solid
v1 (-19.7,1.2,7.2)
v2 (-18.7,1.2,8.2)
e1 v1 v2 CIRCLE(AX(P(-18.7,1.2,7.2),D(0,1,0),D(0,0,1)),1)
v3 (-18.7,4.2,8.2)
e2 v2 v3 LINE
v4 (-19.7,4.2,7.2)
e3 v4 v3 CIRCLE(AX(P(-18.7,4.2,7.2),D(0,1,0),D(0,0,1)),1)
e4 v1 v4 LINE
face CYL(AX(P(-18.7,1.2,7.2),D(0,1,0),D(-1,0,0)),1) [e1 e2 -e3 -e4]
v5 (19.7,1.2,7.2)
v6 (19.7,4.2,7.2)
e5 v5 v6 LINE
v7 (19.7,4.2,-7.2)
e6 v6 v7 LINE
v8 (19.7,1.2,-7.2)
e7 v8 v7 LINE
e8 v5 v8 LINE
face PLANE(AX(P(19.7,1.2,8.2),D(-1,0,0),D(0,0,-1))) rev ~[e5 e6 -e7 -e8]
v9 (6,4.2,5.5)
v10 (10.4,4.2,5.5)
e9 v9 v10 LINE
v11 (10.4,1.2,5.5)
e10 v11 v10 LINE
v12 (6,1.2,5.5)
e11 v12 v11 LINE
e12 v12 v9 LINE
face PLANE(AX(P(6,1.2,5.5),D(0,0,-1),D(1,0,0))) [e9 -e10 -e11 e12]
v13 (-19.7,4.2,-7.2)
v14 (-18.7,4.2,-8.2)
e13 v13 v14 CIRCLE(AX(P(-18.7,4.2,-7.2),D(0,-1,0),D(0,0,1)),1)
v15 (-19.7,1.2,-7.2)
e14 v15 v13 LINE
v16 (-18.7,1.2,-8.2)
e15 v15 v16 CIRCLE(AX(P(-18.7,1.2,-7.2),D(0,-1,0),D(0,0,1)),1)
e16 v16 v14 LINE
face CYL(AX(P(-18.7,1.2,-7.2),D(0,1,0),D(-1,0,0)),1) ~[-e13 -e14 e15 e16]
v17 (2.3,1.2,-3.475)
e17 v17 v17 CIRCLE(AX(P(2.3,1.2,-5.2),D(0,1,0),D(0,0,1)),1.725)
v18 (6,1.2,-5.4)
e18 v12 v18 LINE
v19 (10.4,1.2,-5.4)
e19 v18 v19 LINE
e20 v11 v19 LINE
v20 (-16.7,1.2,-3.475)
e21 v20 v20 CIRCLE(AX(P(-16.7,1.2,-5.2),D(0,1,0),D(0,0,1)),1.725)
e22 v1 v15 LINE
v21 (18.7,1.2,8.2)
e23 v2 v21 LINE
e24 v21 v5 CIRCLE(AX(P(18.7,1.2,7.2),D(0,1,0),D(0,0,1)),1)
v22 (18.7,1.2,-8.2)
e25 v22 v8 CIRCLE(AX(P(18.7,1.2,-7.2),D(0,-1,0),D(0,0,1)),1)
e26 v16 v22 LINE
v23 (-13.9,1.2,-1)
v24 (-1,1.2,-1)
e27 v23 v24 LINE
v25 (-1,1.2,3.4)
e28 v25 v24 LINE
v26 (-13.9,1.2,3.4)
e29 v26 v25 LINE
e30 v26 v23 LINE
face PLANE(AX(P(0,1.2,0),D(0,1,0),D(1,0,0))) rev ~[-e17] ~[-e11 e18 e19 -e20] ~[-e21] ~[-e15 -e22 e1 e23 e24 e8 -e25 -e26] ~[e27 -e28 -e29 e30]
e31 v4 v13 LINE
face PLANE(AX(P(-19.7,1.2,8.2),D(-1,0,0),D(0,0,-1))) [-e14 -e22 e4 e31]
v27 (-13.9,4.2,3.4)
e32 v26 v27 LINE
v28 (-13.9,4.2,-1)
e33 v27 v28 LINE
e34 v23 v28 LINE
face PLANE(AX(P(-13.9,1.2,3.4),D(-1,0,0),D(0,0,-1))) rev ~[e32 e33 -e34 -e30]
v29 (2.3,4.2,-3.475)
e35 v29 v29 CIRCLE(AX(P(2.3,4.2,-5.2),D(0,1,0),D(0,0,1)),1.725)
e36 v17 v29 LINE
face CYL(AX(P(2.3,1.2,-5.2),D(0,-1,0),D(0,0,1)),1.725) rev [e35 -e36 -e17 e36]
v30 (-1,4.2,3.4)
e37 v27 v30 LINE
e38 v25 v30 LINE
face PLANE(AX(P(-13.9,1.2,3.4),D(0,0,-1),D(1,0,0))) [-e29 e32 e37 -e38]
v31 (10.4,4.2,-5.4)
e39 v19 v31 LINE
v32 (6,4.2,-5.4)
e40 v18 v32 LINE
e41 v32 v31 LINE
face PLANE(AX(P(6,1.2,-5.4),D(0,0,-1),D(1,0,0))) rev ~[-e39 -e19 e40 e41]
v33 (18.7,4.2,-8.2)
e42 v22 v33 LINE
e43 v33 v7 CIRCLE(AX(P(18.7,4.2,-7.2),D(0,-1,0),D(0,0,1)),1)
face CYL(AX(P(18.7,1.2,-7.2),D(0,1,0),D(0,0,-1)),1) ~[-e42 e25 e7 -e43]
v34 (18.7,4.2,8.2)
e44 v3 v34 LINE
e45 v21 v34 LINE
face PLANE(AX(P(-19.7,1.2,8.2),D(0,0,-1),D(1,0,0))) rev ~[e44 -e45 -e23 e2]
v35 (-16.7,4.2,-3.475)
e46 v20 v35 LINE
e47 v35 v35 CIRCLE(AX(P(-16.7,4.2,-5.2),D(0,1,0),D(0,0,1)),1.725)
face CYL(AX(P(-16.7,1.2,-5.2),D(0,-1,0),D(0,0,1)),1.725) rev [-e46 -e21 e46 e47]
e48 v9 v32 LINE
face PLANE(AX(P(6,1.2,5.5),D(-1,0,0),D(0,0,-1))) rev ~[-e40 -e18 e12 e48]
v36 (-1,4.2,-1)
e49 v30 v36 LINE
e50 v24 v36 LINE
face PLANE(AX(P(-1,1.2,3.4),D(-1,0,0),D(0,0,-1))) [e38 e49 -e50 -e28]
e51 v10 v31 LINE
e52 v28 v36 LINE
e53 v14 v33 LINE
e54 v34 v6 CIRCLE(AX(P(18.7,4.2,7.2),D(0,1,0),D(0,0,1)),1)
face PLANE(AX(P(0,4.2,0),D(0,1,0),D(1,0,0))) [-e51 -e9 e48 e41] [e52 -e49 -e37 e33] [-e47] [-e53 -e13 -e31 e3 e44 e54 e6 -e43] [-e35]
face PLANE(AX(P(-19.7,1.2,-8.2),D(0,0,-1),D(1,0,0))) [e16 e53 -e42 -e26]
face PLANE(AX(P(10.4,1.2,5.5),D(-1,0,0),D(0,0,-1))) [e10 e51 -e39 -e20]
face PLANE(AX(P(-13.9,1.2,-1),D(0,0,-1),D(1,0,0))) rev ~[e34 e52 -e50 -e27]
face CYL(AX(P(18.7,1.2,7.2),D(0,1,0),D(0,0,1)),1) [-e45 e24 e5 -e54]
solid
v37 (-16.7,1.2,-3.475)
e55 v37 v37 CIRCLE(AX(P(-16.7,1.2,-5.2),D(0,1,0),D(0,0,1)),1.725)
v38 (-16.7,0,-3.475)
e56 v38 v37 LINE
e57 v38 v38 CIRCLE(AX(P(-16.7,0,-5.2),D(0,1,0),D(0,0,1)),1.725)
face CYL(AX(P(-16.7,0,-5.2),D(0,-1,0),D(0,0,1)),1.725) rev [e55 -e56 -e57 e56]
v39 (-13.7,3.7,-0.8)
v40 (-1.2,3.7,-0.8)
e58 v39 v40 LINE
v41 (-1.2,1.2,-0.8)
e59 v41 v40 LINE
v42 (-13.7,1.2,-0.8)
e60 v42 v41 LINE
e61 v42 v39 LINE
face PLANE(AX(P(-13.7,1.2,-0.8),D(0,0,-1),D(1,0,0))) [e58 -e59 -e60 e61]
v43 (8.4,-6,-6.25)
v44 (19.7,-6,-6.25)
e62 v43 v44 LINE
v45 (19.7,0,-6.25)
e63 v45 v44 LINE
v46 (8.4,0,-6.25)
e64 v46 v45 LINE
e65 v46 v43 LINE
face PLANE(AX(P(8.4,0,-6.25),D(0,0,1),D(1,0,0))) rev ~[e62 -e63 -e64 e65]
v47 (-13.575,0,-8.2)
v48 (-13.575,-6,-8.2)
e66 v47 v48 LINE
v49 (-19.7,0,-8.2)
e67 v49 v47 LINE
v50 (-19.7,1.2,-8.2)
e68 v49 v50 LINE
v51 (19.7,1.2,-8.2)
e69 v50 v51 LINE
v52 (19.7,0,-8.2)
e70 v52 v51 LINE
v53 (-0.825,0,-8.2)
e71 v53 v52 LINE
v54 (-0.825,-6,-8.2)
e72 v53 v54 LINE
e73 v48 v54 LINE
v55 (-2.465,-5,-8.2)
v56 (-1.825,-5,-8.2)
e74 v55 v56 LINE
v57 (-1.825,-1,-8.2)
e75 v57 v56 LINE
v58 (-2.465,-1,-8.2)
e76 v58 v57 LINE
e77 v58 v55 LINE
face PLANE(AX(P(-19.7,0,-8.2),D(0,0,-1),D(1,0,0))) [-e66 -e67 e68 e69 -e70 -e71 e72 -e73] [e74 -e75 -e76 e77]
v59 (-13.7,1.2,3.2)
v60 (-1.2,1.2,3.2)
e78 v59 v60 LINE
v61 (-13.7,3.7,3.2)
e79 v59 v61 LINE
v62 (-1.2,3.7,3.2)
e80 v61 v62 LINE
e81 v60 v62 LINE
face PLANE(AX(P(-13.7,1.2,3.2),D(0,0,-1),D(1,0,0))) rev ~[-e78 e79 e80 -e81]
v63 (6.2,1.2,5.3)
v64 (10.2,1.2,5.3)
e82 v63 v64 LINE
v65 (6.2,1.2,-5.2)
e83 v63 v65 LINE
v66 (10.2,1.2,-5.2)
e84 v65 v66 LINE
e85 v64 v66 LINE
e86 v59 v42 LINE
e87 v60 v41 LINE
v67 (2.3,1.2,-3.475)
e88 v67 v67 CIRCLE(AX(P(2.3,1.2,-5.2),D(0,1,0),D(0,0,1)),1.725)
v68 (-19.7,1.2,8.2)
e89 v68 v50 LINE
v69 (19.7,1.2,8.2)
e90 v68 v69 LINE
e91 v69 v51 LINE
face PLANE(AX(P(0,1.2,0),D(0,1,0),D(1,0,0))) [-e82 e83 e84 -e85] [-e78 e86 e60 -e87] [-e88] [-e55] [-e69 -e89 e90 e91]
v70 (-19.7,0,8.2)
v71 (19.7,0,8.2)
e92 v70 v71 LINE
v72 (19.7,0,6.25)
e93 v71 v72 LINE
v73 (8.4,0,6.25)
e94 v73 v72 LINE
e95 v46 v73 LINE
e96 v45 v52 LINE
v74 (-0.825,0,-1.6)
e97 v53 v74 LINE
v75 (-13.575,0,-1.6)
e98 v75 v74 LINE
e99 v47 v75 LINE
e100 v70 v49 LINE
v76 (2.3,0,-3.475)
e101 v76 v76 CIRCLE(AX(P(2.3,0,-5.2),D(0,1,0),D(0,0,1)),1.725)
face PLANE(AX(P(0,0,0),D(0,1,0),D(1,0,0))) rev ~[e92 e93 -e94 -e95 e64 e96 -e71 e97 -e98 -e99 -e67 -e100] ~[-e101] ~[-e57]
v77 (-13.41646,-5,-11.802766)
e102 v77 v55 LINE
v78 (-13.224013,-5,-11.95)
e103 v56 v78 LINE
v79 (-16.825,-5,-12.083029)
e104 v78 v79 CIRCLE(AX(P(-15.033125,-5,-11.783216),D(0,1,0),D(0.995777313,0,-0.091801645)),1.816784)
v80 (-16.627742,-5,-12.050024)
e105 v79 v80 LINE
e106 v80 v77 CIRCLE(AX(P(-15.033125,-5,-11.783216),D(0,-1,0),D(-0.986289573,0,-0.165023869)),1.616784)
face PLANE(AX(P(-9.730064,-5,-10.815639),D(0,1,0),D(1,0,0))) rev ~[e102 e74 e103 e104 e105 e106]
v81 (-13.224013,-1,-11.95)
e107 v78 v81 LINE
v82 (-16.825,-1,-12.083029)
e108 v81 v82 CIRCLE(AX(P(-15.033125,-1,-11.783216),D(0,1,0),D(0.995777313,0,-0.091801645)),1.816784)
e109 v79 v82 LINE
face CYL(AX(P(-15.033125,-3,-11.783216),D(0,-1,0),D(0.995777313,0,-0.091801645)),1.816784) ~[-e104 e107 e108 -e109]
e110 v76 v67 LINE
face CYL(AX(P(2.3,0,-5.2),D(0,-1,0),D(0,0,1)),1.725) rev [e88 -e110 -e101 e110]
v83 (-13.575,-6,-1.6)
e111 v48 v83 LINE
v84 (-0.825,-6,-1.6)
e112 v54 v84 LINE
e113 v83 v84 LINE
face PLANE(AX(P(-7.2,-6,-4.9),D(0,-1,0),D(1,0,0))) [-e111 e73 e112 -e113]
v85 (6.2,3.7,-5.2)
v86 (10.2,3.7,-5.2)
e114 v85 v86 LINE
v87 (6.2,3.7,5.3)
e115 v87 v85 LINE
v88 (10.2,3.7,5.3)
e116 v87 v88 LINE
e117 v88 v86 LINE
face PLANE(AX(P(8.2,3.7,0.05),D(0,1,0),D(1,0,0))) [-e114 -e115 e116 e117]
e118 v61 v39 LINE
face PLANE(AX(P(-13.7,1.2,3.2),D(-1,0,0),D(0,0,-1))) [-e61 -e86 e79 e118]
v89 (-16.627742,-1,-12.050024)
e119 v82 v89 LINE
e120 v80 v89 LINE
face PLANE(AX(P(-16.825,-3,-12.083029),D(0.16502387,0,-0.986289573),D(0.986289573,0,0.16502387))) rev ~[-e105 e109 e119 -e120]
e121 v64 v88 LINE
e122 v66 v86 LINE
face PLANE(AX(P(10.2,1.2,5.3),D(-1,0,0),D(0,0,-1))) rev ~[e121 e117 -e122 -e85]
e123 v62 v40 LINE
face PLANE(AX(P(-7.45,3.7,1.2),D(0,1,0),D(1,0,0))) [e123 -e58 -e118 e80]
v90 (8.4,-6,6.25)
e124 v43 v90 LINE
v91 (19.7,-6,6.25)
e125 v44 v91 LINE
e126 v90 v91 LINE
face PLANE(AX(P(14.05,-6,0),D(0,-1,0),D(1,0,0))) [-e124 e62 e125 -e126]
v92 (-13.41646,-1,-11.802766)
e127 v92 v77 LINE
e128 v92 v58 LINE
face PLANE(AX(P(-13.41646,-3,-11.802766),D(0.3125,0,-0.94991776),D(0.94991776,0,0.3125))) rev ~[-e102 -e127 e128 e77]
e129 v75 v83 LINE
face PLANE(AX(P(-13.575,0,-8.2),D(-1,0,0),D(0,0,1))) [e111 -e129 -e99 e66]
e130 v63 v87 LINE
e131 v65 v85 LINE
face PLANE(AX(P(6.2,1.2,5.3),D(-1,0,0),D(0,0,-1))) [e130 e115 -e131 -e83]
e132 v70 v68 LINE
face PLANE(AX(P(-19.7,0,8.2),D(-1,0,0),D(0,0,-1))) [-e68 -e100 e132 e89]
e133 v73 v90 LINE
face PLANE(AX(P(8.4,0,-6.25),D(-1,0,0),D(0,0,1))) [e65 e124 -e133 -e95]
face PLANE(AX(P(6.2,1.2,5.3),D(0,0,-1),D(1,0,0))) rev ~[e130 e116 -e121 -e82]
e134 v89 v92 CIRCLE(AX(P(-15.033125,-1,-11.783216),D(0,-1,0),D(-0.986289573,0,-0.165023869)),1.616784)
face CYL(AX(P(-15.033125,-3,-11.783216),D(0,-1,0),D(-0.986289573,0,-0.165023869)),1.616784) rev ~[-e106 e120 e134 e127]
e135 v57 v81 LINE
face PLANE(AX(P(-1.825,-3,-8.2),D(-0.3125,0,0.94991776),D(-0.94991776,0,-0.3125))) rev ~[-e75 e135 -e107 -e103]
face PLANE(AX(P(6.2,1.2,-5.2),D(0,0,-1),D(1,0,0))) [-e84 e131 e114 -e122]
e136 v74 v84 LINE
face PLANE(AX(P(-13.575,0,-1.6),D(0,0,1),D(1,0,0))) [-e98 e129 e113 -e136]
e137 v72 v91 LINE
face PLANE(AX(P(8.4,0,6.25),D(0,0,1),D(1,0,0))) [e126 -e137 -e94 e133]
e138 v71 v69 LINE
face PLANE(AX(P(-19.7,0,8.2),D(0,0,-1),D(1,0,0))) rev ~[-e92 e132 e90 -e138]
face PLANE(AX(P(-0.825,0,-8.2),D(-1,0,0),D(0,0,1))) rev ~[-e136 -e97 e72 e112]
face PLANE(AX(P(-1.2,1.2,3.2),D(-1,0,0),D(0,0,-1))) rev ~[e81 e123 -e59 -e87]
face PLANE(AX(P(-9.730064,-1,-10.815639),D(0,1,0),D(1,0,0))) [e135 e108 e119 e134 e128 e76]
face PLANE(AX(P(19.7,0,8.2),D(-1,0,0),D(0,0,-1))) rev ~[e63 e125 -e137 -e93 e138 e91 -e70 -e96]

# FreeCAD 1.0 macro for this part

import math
import FreeCAD as App
import Part
import Sketcher

V = App.Vector
Q = App.Units.Quantity


def edges_at(feature, points):
    """Names of the edges that pass closest to the given points."""
    edges = feature.Shape.Edges
    near = lambda p: min(range(len(edges)), key=lambda i: edges[i].distToShape(Part.Vertex(*p))[0])
    return sorted({f"Edge{near(p) + 1}" for p in points})

doc = App.newDocument("Part")
body = doc.addObject("PartDesign::Body", "Body")

# Sketch on XZ plane
sketch1 = body.newObject("Sketcher::SketchObject", "Sketch")
sketch1.AttachmentSupport = (doc.getObject("XZ_Plane"), [""])
sketch1.MapMode = "FlatFace"
sketch1.addGeometry([
    Part.LineSegment(V(-19.7, -8.2, 0), V(-19.7, 8.2, 0)),  # 0
    Part.LineSegment(V(-19.7, 8.2, 0), V(19.7, 8.2, 0)),  # 1
    Part.LineSegment(V(19.7, 8.2, 0), V(19.7, -8.2, 0)),  # 2
    Part.LineSegment(V(19.7, -8.2, 0), V(-19.7, -8.2, 0)),  # 3
    Part.Circle(V(-16.7, -5.2, 0), V(0, 0, 1), 1.7),  # 4
    Part.Circle(V(2.3, -5.2, 0), V(0, 0, 1), 1.7),  # 5
], False)
sketch1.addConstraint([
    Sketcher.Constraint("Coincident", 0, 2, 1, 1),
    Sketcher.Constraint("Coincident", 1, 2, 2, 1),
    Sketcher.Constraint("Coincident", 2, 2, 3, 1),
    Sketcher.Constraint("Coincident", 3, 2, 0, 1),
    Sketcher.Constraint("Vertical", 0),
    Sketcher.Constraint("Horizontal", 1),
    Sketcher.Constraint("Vertical", 2),
    Sketcher.Constraint("Horizontal", 3),
    Sketcher.Constraint("Equal", 4, 5),
    Sketcher.Constraint("Symmetric", 0, 2, 2, 2, -1, 1),
    Sketcher.Constraint("Horizontal", 4, 3, 5, 3),
    Sketcher.Constraint("Diameter", 4, Q("3.45 mm")),
    Sketcher.Constraint("DistanceX", 1, 1, 1, 2, Q("39.4 mm")),
    Sketcher.Constraint("DistanceY", 0, 1, 0, 2, Q("16.4 mm")),
    Sketcher.Constraint("DistanceX", 4, 3, 5, 3, Q("19 mm")),
    Sketcher.Constraint("DistanceX", 0, 2, 4, 3, Q("3 mm")),
    Sketcher.Constraint("DistanceY", 2, 2, 5, 3, Q("3 mm")),
])
pad1 = body.newObject("PartDesign::Pad", "Pad")
pad1.Profile = sketch1
pad1.Length = 1.2
pad1.Reversed = True

# Sketch on XZ plane
sketch2 = body.newObject("Sketcher::SketchObject", "Sketch001")
sketch2.AttachmentSupport = (doc.getObject("XZ_Plane"), [""])
sketch2.MapMode = "FlatFace"
sketch2.AttachmentOffset = App.Placement(V(0, 0, -1.2), App.Rotation())
sketch2.addGeometry([
    Part.LineSegment(V(-13.7, -0.8, 0), V(-13.7, 3.2, 0)),  # 0
    Part.LineSegment(V(-13.7, 3.2, 0), V(-1.2, 3.2, 0)),  # 1
    Part.LineSegment(V(-1.2, 3.2, 0), V(-1.2, -0.8, 0)),  # 2
    Part.LineSegment(V(-1.2, -0.8, 0), V(-13.7, -0.8, 0)),  # 3
    Part.LineSegment(V(6.2, -5.2, 0), V(6.2, 5.3, 0)),  # 4
    Part.LineSegment(V(6.2, 5.3, 0), V(10.2, 5.3, 0)),  # 5
    Part.LineSegment(V(10.2, 5.3, 0), V(10.2, -5.2, 0)),  # 6
    Part.LineSegment(V(10.2, -5.2, 0), V(6.2, -5.2, 0)),  # 7
], False)
sketch2.addConstraint([
    Sketcher.Constraint("Coincident", 0, 2, 1, 1),
    Sketcher.Constraint("Coincident", 1, 2, 2, 1),
    Sketcher.Constraint("Coincident", 2, 2, 3, 1),
    Sketcher.Constraint("Coincident", 3, 2, 0, 1),
    Sketcher.Constraint("Coincident", 4, 2, 5, 1),
    Sketcher.Constraint("Coincident", 5, 2, 6, 1),
    Sketcher.Constraint("Coincident", 6, 2, 7, 1),
    Sketcher.Constraint("Coincident", 7, 2, 4, 1),
    Sketcher.Constraint("Vertical", 0),
    Sketcher.Constraint("Horizontal", 1),
    Sketcher.Constraint("Vertical", 2),
    Sketcher.Constraint("Horizontal", 3),
    Sketcher.Constraint("Vertical", 4),
    Sketcher.Constraint("Horizontal", 5),
    Sketcher.Constraint("Vertical", 6),
    Sketcher.Constraint("Horizontal", 7),
    Sketcher.Constraint("Equal", 7, 0),
    Sketcher.Constraint("DistanceX", 5, 1, 5, 2, Q("4 mm")),
    Sketcher.Constraint("DistanceX", 1, 1, 1, 2, Q("12.5 mm")),
    Sketcher.Constraint("DistanceY", 4, 1, 4, 2, Q("10.5 mm")),
    Sketcher.Constraint("DistanceX", 0, 2, -1, 1, Q("13.7 mm")),
    Sketcher.Constraint("DistanceY", -1, 1, 0, 2, Q("3.2 mm")),
    Sketcher.Constraint("DistanceX", -1, 1, 4, 2, Q("6.2 mm")),
    Sketcher.Constraint("DistanceY", -1, 1, 4, 2, Q("5.3 mm")),
])
pad2 = body.newObject("PartDesign::Pad", "Pad001")
pad2.Profile = sketch2
pad2.Length = 2.5
pad2.Reversed = True

# Sketch on XZ plane
sketch3 = body.newObject("Sketcher::SketchObject", "Sketch002")
sketch3.AttachmentSupport = (doc.getObject("XZ_Plane"), [""])
sketch3.MapMode = "FlatFace"
sketch3.addGeometry([
    Part.LineSegment(V(8, 6, 0), V(8, -6, 0)),  # 0
    Part.LineSegment(V(8, -6, 0), V(20, -6, 0)),  # 1
    Part.LineSegment(V(20, -6, 0), V(20, 6, 0)),  # 2
    Part.LineSegment(V(20, 6, 0), V(8, 6, 0)),  # 3
    Part.LineSegment(V(-14, -2, 0), V(-14, -8, 0)),  # 4
    Part.LineSegment(V(-14, -8, 0), V(-1, -8, 0)),  # 5
    Part.LineSegment(V(-1, -8, 0), V(-1, -2, 0)),  # 6
    Part.LineSegment(V(-1, -2, 0), V(-14, -2, 0)),  # 7
], False)
sketch3.addConstraint([
    Sketcher.Constraint("Coincident", 0, 2, 1, 1),
    Sketcher.Constraint("Coincident", 1, 2, 2, 1),
    Sketcher.Constraint("Coincident", 2, 2, 3, 1),
    Sketcher.Constraint("Coincident", 3, 2, 0, 1),
    Sketcher.Constraint("Coincident", 4, 2, 5, 1),
    Sketcher.Constraint("Coincident", 5, 2, 6, 1),
    Sketcher.Constraint("Coincident", 6, 2, 7, 1),
    Sketcher.Constraint("Coincident", 7, 2, 4, 1),
    Sketcher.Constraint("Vertical", 0),
    Sketcher.Constraint("Horizontal", 1),
    Sketcher.Constraint("Vertical", 2),
    Sketcher.Constraint("Horizontal", 3),
    Sketcher.Constraint("Vertical", 4),
    Sketcher.Constraint("Horizontal", 5),
    Sketcher.Constraint("Vertical", 6),
    Sketcher.Constraint("Horizontal", 7),
    Sketcher.Constraint("DistanceX", 1, 1, 1, 2, Q("11.3 mm")),
    Sketcher.Constraint("DistanceY", 0, 2, 0, 1, Q("12.5 mm")),
    Sketcher.Constraint("DistanceY", 4, 2, 4, 1, Q("6.6 mm")),
    Sketcher.Constraint("DistanceX", 5, 1, 5, 2, Q("12.75 mm")),
    Sketcher.Constraint("DistanceX", -1, 1, 0, 2, Q("8.4 mm")),
    Sketcher.Constraint("DistanceY", 4, 2, -1, 1, Q("8.2 mm")),
    Sketcher.Constraint("DistanceY", 0, 2, -1, 1, Q("6.25 mm")),
    Sketcher.Constraint("DistanceX", 4, 2, -1, 1, Q("13.575 mm")),
])
pad3 = body.newObject("PartDesign::Pad", "Pad002")
pad3.Profile = sketch3
pad3.Length = 6

# Sketch on XZ plane
sketch4 = body.newObject("Sketcher::SketchObject", "Sketch003")
sketch4.AttachmentSupport = (doc.getObject("XZ_Plane"), [""])
sketch4.MapMode = "FlatFace"
sketch4.AttachmentOffset = App.Placement(V(0, 0, 3), App.Rotation())
sketch4.addGeometry([
    Part.LineSegment(V(-13.22, -11.95, 0), V(-1.82, -8.2, 0)),  # 0
    Part.LineSegment(V(-1.82, -8.2, 0), V(-2.46, -8.2, 0)),  # 1
    Part.LineSegment(V(-2.46, -8.2, 0), V(-13.42, -11.8, 0)),  # 2
    Part.ArcOfCircle(Part.Circle(V(-15.03, -11.78, 0), V(0, 0, 1), 1.62), math.radians(-171), math.radians(-1)),  # 3
    Part.LineSegment(V(-16.63, -12.05, 0), V(-16.82, -12.08, 0)),  # 4
    Part.ArcOfCircle(Part.Circle(V(-15.03, -11.78, 0), V(0, 0, 1), 1.82), math.radians(-171), math.radians(-5)),  # 5
], False)
sketch4.addConstraint([
    Sketcher.Constraint("Coincident", 0, 2, 1, 1),
    Sketcher.Constraint("Coincident", 1, 2, 2, 1),
    Sketcher.Constraint("Coincident", 2, 2, 3, 2),
    Sketcher.Constraint("Coincident", 3, 1, 4, 1),
    Sketcher.Constraint("Coincident", 4, 2, 5, 1),
    Sketcher.Constraint("Coincident", 5, 2, 0, 1),
    Sketcher.Constraint("Horizontal", 1),
    Sketcher.Constraint("Coincident", 5, 3, 3, 3),
    Sketcher.Constraint("Parallel", 0, 2),
    Sketcher.Constraint("Distance", 0, Q("12 mm")),
    Sketcher.Constraint("Distance", 4, Q("0.2 mm")),
    Sketcher.Constraint("DistanceX", 1, 2, 1, 1, Q("0.64 mm")),
    Sketcher.Constraint("DistanceY", 0, 2, -1, 1, Q("8.2 mm")),
    Sketcher.Constraint("DistanceY", 5, 2, -1, 1, Q("11.95 mm")),
    Sketcher.Constraint("DistanceX", 4, 2, 1, 2, Q("14.36 mm")),
    Sketcher.Constraint("DistanceX", 0, 2, -1, 1, Q("1.825 mm")),
    Sketcher.Constraint("Radius", 3, Q("1.616784 mm")),
    Sketcher.Constraint("Distance", 2, Q("11.52885 mm")),
    Sketcher.Constraint("DistanceY", 3, 1, 2, 2, Q("0.247258 mm")),
])
pad4 = body.newObject("PartDesign::Pad", "Pad003")
pad4.Profile = sketch4
pad4.Length = 4
pad4.Midplane = True
body2 = doc.addObject("PartDesign::Body", "Body001")

# Sketch on XZ plane
sketch5 = body2.newObject("Sketcher::SketchObject", "Sketch004")
sketch5.AttachmentSupport = (doc.getObject("XZ_Plane001"), [""])
sketch5.MapMode = "FlatFace"
sketch5.AttachmentOffset = App.Placement(V(0, 0, -1.2), App.Rotation())
sketch5.addGeometry([
    Part.LineSegment(V(-19.7, -8.2, 0), V(-19.7, 8.2, 0)),  # 0
    Part.LineSegment(V(-19.7, 8.2, 0), V(19.7, 8.2, 0)),  # 1
    Part.LineSegment(V(19.7, 8.2, 0), V(19.7, -8.2, 0)),  # 2
    Part.LineSegment(V(19.7, -8.2, 0), V(-19.7, -8.2, 0)),  # 3
    Part.LineSegment(V(-1, 3.4, 0), V(-13.9, 3.4, 0)),  # 4
    Part.LineSegment(V(-13.9, 3.4, 0), V(-13.9, -1, 0)),  # 5
    Part.LineSegment(V(-13.9, -1, 0), V(-1, -1, 0)),  # 6
    Part.LineSegment(V(-1, -1, 0), V(-1, 3.4, 0)),  # 7
    Part.LineSegment(V(10.4, 5.5, 0), V(6, 5.5, 0)),  # 8
    Part.LineSegment(V(6, 5.5, 0), V(6, -5.4, 0)),  # 9
    Part.LineSegment(V(6, -5.4, 0), V(10.4, -5.4, 0)),  # 10
    Part.LineSegment(V(10.4, -5.4, 0), V(10.4, 5.5, 0)),  # 11
    Part.Circle(V(-16.7, -5.2, 0), V(0, 0, 1), 1.7),  # 12
    Part.Circle(V(2.3, -5.2, 0), V(0, 0, 1), 1.7),  # 13
], False)
sketch5.addConstraint([
    Sketcher.Constraint("Coincident", 0, 2, 1, 1),
    Sketcher.Constraint("Coincident", 1, 2, 2, 1),
    Sketcher.Constraint("Coincident", 2, 2, 3, 1),
    Sketcher.Constraint("Coincident", 3, 2, 0, 1),
    Sketcher.Constraint("Coincident", 4, 2, 5, 1),
    Sketcher.Constraint("Coincident", 5, 2, 6, 1),
    Sketcher.Constraint("Coincident", 6, 2, 7, 1),
    Sketcher.Constraint("Coincident", 7, 2, 4, 1),
    Sketcher.Constraint("Coincident", 8, 2, 9, 1),
    Sketcher.Constraint("Coincident", 9, 2, 10, 1),
    Sketcher.Constraint("Coincident", 10, 2, 11, 1),
    Sketcher.Constraint("Coincident", 11, 2, 8, 1),
    Sketcher.Constraint("Vertical", 0),
    Sketcher.Constraint("Horizontal", 1),
    Sketcher.Constraint("Vertical", 2),
    Sketcher.Constraint("Horizontal", 3),
    Sketcher.Constraint("Horizontal", 4),
    Sketcher.Constraint("Vertical", 5),
    Sketcher.Constraint("Horizontal", 6),
    Sketcher.Constraint("Vertical", 7),
    Sketcher.Constraint("Horizontal", 8),
    Sketcher.Constraint("Vertical", 9),
    Sketcher.Constraint("Horizontal", 10),
    Sketcher.Constraint("Vertical", 11),
    Sketcher.Constraint("Equal", 12, 13),
    Sketcher.Constraint("Symmetric", 0, 2, 2, 2, -1, 1),
    Sketcher.Constraint("Horizontal", 12, 3, 13, 3),
    Sketcher.Constraint("Equal", 10, 5),
    Sketcher.Constraint("Diameter", 12, Q("3.45 mm")),
    Sketcher.Constraint("DistanceX", 1, 1, 1, 2, Q("39.4 mm")),
    Sketcher.Constraint("DistanceX", 4, 2, 4, 1, Q("12.9 mm")),
    Sketcher.Constraint("DistanceX", 8, 2, 8, 1, Q("4.4 mm")),
    Sketcher.Constraint("DistanceY", 0, 1, 0, 2, Q("16.4 mm")),
    Sketcher.Constraint("DistanceY", 9, 2, 9, 1, Q("10.9 mm")),
    Sketcher.Constraint("DistanceY", 5, 2, -1, 1, Q("1 mm")),
    Sketcher.Constraint("DistanceX", 6, 2, -1, 1, Q("1 mm")),
    Sketcher.Constraint("DistanceX", -1, 1, 8, 2, Q("6 mm")),
    Sketcher.Constraint("DistanceX", 12, 3, 13, 3, Q("19 mm")),
    Sketcher.Constraint("DistanceX", 0, 2, 12, 3, Q("3 mm")),
    Sketcher.Constraint("DistanceY", 2, 2, 13, 3, Q("3 mm")),
    Sketcher.Constraint("DistanceY", -1, 1, 8, 2, Q("5.5 mm")),
])
pad5 = body2.newObject("PartDesign::Pad", "Pad004")
pad5.Profile = sketch5
pad5.Length = 3
pad5.Reversed = True
doc.recompute()

fillet = body2.newObject("PartDesign::Fillet", "Fillet")
fillet.Base = (pad5, edges_at(pad5, [
    (19.7, 2.7, -8.2),
    (19.7, 2.7, 8.2),
    (-19.7, 2.7, 8.2),
    (-19.7, 2.7, -8.2),
]))
fillet.Radius = 1

doc.recompute()
